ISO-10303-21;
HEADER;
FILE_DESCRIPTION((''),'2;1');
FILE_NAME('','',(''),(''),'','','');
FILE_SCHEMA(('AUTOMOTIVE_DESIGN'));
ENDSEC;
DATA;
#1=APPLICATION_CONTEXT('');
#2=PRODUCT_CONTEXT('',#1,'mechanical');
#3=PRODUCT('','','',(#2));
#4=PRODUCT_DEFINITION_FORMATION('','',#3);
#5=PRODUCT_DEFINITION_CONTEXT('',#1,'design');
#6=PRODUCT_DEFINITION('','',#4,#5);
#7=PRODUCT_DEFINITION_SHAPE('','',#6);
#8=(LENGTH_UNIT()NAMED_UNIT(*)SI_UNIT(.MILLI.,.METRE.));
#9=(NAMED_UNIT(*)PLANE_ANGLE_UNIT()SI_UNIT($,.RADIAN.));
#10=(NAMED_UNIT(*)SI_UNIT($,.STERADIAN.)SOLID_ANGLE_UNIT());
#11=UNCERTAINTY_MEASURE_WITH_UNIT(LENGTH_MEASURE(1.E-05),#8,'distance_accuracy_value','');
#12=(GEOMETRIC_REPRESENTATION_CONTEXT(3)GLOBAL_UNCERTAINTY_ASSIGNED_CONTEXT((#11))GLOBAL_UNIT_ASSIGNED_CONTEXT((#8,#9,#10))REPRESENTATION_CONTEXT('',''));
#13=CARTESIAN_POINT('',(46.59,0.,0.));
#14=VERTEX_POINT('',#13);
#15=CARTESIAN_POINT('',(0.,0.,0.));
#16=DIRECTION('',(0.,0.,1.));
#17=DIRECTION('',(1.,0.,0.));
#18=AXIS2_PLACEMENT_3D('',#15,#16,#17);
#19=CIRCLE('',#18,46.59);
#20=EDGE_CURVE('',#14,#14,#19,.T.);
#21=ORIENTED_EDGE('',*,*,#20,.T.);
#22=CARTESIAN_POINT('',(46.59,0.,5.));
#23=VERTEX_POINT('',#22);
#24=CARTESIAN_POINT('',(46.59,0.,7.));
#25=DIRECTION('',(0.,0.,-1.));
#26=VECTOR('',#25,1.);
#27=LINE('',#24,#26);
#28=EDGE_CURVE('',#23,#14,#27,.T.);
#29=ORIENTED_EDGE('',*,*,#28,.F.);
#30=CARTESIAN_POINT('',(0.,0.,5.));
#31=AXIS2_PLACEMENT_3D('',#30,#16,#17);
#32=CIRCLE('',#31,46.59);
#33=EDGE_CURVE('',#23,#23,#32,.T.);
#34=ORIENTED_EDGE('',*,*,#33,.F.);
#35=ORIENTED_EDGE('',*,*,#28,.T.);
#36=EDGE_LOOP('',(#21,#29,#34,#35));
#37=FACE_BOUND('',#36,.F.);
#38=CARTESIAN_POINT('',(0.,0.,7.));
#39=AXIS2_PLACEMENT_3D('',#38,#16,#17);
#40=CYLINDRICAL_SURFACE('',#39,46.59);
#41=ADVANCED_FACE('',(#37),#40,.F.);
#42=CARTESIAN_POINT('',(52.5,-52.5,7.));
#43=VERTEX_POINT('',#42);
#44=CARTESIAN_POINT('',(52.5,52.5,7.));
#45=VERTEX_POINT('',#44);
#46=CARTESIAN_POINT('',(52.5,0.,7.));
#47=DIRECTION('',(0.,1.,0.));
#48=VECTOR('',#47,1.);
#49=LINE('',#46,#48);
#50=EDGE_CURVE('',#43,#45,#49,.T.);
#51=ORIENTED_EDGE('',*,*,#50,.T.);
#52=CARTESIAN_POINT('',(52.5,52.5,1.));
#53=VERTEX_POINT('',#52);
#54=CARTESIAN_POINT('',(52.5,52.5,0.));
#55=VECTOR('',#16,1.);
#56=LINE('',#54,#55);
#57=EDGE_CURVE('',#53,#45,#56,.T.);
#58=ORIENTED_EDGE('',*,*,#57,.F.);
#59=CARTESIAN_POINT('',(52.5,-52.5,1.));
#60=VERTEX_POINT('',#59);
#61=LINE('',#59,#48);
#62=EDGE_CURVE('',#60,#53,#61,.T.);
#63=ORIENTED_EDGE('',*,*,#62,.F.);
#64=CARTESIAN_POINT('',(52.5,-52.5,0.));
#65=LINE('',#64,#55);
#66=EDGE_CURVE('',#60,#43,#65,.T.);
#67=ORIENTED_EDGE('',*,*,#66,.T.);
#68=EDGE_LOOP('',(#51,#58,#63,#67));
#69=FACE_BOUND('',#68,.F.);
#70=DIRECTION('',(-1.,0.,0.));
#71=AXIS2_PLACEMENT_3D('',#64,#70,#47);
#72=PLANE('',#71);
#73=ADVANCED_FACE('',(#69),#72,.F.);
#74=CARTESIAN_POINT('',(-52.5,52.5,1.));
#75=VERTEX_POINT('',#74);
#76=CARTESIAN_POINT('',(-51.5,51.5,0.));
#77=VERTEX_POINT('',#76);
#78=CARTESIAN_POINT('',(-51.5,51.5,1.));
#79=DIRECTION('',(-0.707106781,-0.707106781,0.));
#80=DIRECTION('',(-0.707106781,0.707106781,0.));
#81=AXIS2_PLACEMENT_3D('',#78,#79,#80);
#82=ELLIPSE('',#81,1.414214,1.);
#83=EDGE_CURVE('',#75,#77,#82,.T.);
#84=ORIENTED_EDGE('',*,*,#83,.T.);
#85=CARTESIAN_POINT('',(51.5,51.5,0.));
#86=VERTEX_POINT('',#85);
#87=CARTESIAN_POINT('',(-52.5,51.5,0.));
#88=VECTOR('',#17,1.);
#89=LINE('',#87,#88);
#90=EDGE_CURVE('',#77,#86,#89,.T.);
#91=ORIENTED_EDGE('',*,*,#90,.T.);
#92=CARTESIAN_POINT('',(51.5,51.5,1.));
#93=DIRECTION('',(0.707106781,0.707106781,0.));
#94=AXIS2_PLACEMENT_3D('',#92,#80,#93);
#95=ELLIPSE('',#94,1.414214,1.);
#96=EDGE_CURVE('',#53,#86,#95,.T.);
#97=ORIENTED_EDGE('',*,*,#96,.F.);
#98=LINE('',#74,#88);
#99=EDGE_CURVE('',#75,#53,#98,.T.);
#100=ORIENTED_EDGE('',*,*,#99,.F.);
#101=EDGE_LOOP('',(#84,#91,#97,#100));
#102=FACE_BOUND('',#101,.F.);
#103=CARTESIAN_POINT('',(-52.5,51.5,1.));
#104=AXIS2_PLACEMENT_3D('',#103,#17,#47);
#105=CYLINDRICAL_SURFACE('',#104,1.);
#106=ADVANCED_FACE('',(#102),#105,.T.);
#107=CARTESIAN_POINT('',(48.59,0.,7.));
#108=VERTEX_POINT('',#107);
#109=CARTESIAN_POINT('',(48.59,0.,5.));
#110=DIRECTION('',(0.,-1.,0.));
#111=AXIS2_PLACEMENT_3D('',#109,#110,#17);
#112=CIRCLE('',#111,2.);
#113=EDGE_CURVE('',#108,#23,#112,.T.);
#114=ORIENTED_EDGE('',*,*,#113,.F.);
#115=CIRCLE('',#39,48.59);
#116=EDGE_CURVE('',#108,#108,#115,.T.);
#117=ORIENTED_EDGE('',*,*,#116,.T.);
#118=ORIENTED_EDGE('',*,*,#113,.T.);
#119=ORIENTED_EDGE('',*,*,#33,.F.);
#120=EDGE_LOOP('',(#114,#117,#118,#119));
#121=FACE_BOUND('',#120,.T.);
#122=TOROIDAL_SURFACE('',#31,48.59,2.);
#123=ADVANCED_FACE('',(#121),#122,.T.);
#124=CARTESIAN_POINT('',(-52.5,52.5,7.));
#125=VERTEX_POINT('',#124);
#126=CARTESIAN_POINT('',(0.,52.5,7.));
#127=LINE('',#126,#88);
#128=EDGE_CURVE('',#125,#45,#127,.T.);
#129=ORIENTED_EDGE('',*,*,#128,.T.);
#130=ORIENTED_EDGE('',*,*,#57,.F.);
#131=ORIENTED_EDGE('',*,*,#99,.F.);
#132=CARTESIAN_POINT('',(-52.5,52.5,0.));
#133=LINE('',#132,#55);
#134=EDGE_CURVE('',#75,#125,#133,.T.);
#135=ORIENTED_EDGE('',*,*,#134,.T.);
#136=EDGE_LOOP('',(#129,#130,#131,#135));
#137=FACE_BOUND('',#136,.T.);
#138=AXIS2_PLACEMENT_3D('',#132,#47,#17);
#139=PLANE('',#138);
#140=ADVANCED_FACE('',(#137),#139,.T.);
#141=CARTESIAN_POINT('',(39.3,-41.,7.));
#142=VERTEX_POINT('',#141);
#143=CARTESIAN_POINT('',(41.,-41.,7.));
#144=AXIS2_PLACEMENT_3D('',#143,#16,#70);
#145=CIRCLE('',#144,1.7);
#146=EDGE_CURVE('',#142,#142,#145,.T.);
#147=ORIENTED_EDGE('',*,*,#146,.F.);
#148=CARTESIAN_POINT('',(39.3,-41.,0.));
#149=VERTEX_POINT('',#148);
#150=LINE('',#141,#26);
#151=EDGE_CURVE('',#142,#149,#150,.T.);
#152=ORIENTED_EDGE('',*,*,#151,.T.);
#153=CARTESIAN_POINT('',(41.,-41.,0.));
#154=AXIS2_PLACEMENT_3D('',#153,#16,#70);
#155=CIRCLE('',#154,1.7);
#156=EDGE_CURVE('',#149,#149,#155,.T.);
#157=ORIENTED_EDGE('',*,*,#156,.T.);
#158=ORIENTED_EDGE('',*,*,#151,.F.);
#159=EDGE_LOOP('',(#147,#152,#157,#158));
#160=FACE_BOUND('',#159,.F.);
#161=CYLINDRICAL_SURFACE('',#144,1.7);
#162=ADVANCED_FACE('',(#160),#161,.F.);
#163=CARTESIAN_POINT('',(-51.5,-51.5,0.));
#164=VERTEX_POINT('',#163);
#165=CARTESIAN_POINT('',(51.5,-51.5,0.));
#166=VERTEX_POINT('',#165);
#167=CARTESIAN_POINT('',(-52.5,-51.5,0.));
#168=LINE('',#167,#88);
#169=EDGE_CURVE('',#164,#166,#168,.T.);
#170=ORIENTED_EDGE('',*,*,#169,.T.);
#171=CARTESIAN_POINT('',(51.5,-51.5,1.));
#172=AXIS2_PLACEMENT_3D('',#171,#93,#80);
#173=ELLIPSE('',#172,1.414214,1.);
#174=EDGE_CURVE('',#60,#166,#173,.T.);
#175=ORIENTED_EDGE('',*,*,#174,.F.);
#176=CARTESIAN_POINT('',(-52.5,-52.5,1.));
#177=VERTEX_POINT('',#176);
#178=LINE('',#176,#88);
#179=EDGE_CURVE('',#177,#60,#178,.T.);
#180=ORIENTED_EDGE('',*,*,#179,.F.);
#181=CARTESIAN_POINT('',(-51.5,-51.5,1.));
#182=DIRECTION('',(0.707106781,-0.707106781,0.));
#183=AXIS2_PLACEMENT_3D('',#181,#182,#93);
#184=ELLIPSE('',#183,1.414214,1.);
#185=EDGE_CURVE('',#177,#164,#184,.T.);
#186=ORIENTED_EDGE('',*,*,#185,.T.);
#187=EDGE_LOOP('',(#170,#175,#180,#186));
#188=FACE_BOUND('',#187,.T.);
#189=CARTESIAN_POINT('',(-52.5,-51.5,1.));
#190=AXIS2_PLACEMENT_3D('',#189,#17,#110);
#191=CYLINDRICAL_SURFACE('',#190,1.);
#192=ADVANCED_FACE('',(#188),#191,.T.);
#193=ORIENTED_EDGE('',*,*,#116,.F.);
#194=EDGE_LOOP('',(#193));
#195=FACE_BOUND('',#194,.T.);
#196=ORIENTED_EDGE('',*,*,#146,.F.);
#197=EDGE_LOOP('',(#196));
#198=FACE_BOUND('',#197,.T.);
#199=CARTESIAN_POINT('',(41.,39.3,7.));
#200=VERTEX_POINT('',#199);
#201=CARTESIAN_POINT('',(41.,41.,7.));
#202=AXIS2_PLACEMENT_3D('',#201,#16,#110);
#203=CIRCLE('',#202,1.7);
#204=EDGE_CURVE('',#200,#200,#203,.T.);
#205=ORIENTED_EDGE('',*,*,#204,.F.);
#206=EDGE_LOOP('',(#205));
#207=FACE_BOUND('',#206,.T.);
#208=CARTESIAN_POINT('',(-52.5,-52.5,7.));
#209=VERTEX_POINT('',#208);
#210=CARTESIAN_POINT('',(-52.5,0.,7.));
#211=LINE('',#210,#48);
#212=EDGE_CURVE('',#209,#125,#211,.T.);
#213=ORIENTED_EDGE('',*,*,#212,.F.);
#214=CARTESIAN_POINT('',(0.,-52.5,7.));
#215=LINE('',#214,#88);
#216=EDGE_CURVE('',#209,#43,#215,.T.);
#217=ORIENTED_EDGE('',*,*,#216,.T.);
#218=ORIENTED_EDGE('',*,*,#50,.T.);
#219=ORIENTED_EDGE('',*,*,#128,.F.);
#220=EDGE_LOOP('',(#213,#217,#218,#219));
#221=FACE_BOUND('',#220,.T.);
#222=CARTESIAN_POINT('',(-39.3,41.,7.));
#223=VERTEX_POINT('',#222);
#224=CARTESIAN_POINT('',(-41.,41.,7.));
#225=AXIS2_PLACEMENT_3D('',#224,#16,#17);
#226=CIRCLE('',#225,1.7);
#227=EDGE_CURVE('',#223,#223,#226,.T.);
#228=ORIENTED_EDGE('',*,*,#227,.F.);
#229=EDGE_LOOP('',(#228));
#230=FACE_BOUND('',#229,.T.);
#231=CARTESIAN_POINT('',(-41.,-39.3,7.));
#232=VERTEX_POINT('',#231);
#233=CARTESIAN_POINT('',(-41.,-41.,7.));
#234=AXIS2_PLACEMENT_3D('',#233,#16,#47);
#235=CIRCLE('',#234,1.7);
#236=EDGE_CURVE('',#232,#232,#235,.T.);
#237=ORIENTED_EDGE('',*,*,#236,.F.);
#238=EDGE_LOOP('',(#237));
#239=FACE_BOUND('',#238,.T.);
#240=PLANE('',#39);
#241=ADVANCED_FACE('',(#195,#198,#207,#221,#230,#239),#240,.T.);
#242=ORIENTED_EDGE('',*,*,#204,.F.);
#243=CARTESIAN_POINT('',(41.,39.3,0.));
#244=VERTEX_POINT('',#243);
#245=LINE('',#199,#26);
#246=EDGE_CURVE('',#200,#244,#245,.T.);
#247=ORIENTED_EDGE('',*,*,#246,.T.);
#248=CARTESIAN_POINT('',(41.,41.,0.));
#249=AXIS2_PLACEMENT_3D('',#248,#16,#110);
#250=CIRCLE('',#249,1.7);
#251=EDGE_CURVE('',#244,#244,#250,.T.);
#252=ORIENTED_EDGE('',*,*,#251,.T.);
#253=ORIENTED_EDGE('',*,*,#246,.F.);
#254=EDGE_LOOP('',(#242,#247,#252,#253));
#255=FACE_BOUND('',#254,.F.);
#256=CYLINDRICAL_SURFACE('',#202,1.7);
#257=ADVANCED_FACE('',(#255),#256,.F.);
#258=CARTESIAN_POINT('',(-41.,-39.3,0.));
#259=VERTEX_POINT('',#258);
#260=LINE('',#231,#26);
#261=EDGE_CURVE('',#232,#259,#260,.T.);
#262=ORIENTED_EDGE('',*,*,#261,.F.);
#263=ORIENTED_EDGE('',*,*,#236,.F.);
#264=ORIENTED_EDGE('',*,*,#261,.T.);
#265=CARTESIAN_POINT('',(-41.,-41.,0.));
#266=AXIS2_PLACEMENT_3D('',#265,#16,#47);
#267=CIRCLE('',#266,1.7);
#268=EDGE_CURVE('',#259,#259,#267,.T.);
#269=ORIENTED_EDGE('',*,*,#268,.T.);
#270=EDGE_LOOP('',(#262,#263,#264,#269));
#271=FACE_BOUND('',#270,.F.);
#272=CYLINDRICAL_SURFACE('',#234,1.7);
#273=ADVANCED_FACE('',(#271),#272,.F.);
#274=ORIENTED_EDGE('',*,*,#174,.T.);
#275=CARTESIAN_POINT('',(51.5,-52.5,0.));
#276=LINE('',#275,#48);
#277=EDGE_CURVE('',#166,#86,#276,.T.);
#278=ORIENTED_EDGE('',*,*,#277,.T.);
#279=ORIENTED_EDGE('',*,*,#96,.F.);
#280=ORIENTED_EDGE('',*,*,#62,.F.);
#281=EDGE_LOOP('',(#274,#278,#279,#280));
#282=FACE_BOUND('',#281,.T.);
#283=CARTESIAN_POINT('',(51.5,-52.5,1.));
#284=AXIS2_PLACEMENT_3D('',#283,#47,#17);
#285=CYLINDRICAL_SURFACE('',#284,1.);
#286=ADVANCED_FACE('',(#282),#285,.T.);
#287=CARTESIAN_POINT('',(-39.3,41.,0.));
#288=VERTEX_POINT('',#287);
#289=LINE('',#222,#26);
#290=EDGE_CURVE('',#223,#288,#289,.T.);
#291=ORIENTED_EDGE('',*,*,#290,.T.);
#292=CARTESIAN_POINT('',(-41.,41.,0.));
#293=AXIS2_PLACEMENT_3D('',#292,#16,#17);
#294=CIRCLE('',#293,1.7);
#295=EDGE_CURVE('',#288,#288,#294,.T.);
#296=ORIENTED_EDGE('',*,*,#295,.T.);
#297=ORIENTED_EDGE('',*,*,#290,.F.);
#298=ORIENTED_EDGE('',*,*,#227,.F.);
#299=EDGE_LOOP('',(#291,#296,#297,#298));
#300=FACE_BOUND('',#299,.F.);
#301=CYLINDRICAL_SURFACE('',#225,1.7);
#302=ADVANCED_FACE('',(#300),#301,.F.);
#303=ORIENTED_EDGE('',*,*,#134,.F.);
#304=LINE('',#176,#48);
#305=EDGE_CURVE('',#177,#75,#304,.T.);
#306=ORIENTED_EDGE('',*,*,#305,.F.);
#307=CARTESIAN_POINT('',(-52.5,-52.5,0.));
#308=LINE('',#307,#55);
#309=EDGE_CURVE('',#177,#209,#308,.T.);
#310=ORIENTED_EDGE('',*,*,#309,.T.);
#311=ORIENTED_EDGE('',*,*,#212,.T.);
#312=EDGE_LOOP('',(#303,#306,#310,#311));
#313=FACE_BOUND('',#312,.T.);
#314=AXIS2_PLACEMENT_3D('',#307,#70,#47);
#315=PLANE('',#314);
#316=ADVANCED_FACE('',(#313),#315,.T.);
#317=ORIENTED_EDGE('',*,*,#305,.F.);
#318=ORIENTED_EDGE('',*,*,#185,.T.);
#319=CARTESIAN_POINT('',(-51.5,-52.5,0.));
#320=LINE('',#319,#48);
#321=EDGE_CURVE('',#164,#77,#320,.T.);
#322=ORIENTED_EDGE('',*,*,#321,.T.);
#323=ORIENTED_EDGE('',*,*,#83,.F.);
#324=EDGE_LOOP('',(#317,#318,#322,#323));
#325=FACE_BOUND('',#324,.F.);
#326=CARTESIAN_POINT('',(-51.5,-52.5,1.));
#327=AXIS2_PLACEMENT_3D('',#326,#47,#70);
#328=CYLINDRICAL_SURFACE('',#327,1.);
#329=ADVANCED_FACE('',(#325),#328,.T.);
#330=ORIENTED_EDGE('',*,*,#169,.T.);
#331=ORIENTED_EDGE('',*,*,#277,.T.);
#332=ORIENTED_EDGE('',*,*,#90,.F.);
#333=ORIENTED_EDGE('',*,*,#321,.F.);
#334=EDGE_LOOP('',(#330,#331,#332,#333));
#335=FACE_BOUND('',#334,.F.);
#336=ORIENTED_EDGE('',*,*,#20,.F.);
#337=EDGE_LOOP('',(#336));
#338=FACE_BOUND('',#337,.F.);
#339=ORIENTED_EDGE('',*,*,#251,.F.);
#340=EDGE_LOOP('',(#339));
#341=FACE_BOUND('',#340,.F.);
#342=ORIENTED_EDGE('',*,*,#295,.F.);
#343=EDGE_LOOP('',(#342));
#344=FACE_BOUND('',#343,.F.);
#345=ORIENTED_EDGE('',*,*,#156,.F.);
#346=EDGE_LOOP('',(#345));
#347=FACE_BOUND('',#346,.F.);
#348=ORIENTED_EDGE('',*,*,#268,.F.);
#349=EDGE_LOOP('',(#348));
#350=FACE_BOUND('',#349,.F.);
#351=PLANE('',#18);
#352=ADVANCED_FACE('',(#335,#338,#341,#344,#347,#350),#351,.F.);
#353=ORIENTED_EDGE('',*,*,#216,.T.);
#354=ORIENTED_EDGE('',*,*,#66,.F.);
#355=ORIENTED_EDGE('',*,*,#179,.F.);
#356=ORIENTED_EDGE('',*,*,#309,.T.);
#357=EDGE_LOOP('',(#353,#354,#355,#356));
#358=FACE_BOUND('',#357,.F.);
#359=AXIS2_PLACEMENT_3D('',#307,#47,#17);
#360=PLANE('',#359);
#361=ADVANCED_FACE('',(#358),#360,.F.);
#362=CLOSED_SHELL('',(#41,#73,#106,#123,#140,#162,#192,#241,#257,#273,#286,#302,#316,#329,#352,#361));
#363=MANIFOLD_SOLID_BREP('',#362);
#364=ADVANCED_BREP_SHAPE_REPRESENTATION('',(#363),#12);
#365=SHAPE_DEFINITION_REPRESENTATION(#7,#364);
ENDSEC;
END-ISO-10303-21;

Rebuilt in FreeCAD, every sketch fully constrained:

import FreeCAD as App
import Part
import Sketcher
from FreeCAD import Vector
Q = App.Units.Quantity


def edges_at(feature, points):
    """Names of the edges that pass closest to the given points."""
    edges = feature.Shape.Edges
    near = lambda p: min(range(len(edges)), key=lambda i: edges[i].distToShape(Part.Vertex(*p))[0])
    return sorted({f"Edge{near(p) + 1}" for p in points})

doc = App.newDocument("Part")
body = doc.addObject("PartDesign::Body", "Body")

sketch1 = body.newObject("Sketcher::SketchObject", "Sketch")
sketch1.AttachmentSupport = (doc.getObject("XY_Plane"), [""])
sketch1.MapMode = "FlatFace"
sketch1.addGeometry([
    Part.LineSegment(Vector(-52, 52, 0), Vector(-52, -52, 0)),
    Part.LineSegment(Vector(-52, -52, 0), Vector(52, -52, 0)),
    Part.LineSegment(Vector(52, -52, 0), Vector(52, 52, 0)),
    Part.LineSegment(Vector(52, 52, 0), Vector(-52, 52, 0)),
], False)
sketch1.addConstraint([
    Sketcher.Constraint("Coincident", 0, 2, 1, 1),
    Sketcher.Constraint("Coincident", 1, 2, 2, 1),
    Sketcher.Constraint("Coincident", 2, 2, 3, 1),
    Sketcher.Constraint("Coincident", 3, 2, 0, 1),
    Sketcher.Constraint("Vertical", 0),
    Sketcher.Constraint("Horizontal", 1),
    Sketcher.Constraint("Vertical", 2),
    Sketcher.Constraint("Horizontal", 3),
    Sketcher.Constraint("Symmetric", 0, 2, 2, 2, -1, 1),
    Sketcher.Constraint("Equal", 3, 0),
    Sketcher.Constraint("DistanceX", 1, 1, 1, 2, Q("105 mm")),
])
pad1 = body.newObject("PartDesign::Pad", "Pad")
pad1.Profile = sketch1
pad1.Length = 7

sketch2 = body.newObject("Sketcher::SketchObject", "Sketch001")
sketch2.AttachmentSupport = (doc.getObject("XY_Plane"), [""])
sketch2.MapMode = "FlatFace"
sketch2.AttachmentOffset = App.Placement(Vector(0, 0, 7), App.Rotation())
sketch2.addGeometry(Part.Circle(Vector(-41, 41, 0), Vector(0, 0, 1), 1.7), False)
sketch2.addConstraint([
    Sketcher.Constraint("Diameter", 0, Q("3.4 mm")),
    Sketcher.Constraint("DistanceX", 0, 3, -1, 1, Q("41 mm")),
    Sketcher.Constraint("DistanceY", -1, 1, 0, 3, Q("41 mm")),
])
pocket1 = body.newObject("PartDesign::Pocket", "Pocket")
pocket1.Profile = sketch2
pocket1.Length = 9
doc.recompute()

polarpattern = body.newObject("PartDesign::PolarPattern", "PolarPattern")
polarpattern.Originals = [pocket1]
polarpattern.Axis = (doc.getObject("Z_Axis"), [""])
polarpattern.Angle = 360
polarpattern.Occurrences = 4
body.Tip = polarpattern

sketch3 = body.newObject("Sketcher::SketchObject", "Sketch002")
sketch3.AttachmentSupport = (doc.getObject("XY_Plane"), [""])
sketch3.MapMode = "FlatFace"
sketch3.AttachmentOffset = App.Placement(Vector(0, 0, 7), App.Rotation())
sketch3.addGeometry(Part.Circle(Vector(0, 0, 0), Vector(0, 0, 1), 47), False)
sketch3.addConstraint([
    Sketcher.Constraint("Coincident", 0, 3, -1, 1),
    Sketcher.Constraint("Diameter", 0, Q("93.18 mm")),
])
pocket2 = body.newObject("PartDesign::Pocket", "Pocket001")
pocket2.Profile = sketch3
pocket2.Length = 8
doc.recompute()

fillet = body.newObject("PartDesign::Fillet", "Fillet")
fillet.Base = (pocket2, edges_at(pocket2, [(-46.59, 0, 7)]))
fillet.Radius = 2
doc.recompute()

fillet2 = body.newObject("PartDesign::Fillet", "Fillet001")
fillet2.Base = (fillet, edges_at(fillet, [
    (52.5, 0, 0),
    (-52.5, 0, 0),
    (0, -52.5, 0),
    (0, 52.5, 0),
]))
fillet2.Radius = 1

doc.recompute()
